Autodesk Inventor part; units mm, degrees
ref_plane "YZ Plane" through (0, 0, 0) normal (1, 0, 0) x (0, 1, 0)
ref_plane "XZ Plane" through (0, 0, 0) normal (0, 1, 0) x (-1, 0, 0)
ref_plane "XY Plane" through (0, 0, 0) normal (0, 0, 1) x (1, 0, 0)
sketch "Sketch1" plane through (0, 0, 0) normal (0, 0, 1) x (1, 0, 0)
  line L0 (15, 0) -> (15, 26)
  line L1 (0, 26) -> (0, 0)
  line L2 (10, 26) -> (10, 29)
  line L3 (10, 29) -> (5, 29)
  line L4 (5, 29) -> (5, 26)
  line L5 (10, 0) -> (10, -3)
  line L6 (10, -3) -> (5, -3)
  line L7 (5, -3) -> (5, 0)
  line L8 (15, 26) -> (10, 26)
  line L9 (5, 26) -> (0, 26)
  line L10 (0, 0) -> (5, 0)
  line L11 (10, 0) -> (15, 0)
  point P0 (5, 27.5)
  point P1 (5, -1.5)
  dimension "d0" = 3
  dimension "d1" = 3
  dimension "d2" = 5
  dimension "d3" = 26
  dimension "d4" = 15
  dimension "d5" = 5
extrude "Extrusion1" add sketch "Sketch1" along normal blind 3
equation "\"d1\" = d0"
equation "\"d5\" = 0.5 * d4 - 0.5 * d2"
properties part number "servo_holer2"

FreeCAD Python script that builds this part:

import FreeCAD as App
import Part
import Sketcher

V = App.Vector
Q = App.Units.Quantity


def add_polygon(sketch, points):
    """Adds a closed chain of lines whose ends are joined by coincident constraints."""
    first, n = sketch.GeometryCount, len(points)
    for a, b in zip(points, points[1:] + points[:1]):
        sketch.addGeometry(Part.LineSegment(App.Vector(*a, 0), App.Vector(*b, 0)), False)
    for i in range(n):
        sketch.addConstraint(Sketcher.Constraint("Coincident", first + i, 2, first + (i + 1) % n, 1))

doc = App.newDocument("Part")
body = doc.addObject("PartDesign::Body", "Body")

# Sketch on XY plane
sketch1 = doc.addObject("Sketcher::SketchObject", "Sketch")
body.addObject(sketch1)
sketch1.AttachmentSupport = (doc.XY_Plane, [""])
sketch1.MapMode = "FlatFace"
add_polygon(sketch1, [(10, 0), (15, 0), (15, 26), (10, 26), (10, 29), (5, 29), (5, 26), (0, 26), (0, 0), (5, 0), (5, -3), (10, -3)])  # lines 0-11
sketch1.addConstraint(Sketcher.Constraint("Horizontal", 0))
sketch1.addConstraint(Sketcher.Constraint("Vertical", 1))
sketch1.addConstraint(Sketcher.Constraint("Horizontal", 2))
sketch1.addConstraint(Sketcher.Constraint("Vertical", 3))
sketch1.addConstraint(Sketcher.Constraint("Horizontal", 4))
sketch1.addConstraint(Sketcher.Constraint("Vertical", 5))
sketch1.addConstraint(Sketcher.Constraint("Horizontal", 6))
sketch1.addConstraint(Sketcher.Constraint("Vertical", 7))
sketch1.addConstraint(Sketcher.Constraint("Horizontal", 8))
sketch1.addConstraint(Sketcher.Constraint("Vertical", 9))
sketch1.addConstraint(Sketcher.Constraint("Horizontal", 10))
sketch1.addConstraint(Sketcher.Constraint("Vertical", 11))
sketch1.addConstraint(Sketcher.Constraint("Coincident", 7, 2, -1, 1))
sketch1.addConstraint(Sketcher.Constraint("PointOnObject", 0, 2, -1))
sketch1.addConstraint(Sketcher.Constraint("Horizontal", 2, 2, 5, 2))
sketch1.addConstraint(Sketcher.Constraint("Vertical", 5, 2, 8, 2))
sketch1.addConstraint(Sketcher.Constraint("Vertical", 3, 2, 10, 2))
sketch1.addConstraint(Sketcher.Constraint("Equal", 2, 4))
sketch1.addConstraint(Sketcher.Constraint("Equal", 4, 6))
sketch1.addConstraint(Sketcher.Constraint("Equal", 5, 9))
sketch1.addConstraint(Sketcher.Constraint("DistanceX", 0, 1, 0, 2, Q("5 mm")))
sketch1.addConstraint(Sketcher.Constraint("DistanceY", 1, 1, 1, 2, Q("26 mm")))
sketch1.addConstraint(Sketcher.Constraint("DistanceY", 3, 1, 3, 2, Q("3 mm")))
pad1 = doc.addObject("PartDesign::Pad", "Pad")
body.addObject(pad1)
pad1.Profile = sketch1
pad1.Length = 3

doc.recompute()
